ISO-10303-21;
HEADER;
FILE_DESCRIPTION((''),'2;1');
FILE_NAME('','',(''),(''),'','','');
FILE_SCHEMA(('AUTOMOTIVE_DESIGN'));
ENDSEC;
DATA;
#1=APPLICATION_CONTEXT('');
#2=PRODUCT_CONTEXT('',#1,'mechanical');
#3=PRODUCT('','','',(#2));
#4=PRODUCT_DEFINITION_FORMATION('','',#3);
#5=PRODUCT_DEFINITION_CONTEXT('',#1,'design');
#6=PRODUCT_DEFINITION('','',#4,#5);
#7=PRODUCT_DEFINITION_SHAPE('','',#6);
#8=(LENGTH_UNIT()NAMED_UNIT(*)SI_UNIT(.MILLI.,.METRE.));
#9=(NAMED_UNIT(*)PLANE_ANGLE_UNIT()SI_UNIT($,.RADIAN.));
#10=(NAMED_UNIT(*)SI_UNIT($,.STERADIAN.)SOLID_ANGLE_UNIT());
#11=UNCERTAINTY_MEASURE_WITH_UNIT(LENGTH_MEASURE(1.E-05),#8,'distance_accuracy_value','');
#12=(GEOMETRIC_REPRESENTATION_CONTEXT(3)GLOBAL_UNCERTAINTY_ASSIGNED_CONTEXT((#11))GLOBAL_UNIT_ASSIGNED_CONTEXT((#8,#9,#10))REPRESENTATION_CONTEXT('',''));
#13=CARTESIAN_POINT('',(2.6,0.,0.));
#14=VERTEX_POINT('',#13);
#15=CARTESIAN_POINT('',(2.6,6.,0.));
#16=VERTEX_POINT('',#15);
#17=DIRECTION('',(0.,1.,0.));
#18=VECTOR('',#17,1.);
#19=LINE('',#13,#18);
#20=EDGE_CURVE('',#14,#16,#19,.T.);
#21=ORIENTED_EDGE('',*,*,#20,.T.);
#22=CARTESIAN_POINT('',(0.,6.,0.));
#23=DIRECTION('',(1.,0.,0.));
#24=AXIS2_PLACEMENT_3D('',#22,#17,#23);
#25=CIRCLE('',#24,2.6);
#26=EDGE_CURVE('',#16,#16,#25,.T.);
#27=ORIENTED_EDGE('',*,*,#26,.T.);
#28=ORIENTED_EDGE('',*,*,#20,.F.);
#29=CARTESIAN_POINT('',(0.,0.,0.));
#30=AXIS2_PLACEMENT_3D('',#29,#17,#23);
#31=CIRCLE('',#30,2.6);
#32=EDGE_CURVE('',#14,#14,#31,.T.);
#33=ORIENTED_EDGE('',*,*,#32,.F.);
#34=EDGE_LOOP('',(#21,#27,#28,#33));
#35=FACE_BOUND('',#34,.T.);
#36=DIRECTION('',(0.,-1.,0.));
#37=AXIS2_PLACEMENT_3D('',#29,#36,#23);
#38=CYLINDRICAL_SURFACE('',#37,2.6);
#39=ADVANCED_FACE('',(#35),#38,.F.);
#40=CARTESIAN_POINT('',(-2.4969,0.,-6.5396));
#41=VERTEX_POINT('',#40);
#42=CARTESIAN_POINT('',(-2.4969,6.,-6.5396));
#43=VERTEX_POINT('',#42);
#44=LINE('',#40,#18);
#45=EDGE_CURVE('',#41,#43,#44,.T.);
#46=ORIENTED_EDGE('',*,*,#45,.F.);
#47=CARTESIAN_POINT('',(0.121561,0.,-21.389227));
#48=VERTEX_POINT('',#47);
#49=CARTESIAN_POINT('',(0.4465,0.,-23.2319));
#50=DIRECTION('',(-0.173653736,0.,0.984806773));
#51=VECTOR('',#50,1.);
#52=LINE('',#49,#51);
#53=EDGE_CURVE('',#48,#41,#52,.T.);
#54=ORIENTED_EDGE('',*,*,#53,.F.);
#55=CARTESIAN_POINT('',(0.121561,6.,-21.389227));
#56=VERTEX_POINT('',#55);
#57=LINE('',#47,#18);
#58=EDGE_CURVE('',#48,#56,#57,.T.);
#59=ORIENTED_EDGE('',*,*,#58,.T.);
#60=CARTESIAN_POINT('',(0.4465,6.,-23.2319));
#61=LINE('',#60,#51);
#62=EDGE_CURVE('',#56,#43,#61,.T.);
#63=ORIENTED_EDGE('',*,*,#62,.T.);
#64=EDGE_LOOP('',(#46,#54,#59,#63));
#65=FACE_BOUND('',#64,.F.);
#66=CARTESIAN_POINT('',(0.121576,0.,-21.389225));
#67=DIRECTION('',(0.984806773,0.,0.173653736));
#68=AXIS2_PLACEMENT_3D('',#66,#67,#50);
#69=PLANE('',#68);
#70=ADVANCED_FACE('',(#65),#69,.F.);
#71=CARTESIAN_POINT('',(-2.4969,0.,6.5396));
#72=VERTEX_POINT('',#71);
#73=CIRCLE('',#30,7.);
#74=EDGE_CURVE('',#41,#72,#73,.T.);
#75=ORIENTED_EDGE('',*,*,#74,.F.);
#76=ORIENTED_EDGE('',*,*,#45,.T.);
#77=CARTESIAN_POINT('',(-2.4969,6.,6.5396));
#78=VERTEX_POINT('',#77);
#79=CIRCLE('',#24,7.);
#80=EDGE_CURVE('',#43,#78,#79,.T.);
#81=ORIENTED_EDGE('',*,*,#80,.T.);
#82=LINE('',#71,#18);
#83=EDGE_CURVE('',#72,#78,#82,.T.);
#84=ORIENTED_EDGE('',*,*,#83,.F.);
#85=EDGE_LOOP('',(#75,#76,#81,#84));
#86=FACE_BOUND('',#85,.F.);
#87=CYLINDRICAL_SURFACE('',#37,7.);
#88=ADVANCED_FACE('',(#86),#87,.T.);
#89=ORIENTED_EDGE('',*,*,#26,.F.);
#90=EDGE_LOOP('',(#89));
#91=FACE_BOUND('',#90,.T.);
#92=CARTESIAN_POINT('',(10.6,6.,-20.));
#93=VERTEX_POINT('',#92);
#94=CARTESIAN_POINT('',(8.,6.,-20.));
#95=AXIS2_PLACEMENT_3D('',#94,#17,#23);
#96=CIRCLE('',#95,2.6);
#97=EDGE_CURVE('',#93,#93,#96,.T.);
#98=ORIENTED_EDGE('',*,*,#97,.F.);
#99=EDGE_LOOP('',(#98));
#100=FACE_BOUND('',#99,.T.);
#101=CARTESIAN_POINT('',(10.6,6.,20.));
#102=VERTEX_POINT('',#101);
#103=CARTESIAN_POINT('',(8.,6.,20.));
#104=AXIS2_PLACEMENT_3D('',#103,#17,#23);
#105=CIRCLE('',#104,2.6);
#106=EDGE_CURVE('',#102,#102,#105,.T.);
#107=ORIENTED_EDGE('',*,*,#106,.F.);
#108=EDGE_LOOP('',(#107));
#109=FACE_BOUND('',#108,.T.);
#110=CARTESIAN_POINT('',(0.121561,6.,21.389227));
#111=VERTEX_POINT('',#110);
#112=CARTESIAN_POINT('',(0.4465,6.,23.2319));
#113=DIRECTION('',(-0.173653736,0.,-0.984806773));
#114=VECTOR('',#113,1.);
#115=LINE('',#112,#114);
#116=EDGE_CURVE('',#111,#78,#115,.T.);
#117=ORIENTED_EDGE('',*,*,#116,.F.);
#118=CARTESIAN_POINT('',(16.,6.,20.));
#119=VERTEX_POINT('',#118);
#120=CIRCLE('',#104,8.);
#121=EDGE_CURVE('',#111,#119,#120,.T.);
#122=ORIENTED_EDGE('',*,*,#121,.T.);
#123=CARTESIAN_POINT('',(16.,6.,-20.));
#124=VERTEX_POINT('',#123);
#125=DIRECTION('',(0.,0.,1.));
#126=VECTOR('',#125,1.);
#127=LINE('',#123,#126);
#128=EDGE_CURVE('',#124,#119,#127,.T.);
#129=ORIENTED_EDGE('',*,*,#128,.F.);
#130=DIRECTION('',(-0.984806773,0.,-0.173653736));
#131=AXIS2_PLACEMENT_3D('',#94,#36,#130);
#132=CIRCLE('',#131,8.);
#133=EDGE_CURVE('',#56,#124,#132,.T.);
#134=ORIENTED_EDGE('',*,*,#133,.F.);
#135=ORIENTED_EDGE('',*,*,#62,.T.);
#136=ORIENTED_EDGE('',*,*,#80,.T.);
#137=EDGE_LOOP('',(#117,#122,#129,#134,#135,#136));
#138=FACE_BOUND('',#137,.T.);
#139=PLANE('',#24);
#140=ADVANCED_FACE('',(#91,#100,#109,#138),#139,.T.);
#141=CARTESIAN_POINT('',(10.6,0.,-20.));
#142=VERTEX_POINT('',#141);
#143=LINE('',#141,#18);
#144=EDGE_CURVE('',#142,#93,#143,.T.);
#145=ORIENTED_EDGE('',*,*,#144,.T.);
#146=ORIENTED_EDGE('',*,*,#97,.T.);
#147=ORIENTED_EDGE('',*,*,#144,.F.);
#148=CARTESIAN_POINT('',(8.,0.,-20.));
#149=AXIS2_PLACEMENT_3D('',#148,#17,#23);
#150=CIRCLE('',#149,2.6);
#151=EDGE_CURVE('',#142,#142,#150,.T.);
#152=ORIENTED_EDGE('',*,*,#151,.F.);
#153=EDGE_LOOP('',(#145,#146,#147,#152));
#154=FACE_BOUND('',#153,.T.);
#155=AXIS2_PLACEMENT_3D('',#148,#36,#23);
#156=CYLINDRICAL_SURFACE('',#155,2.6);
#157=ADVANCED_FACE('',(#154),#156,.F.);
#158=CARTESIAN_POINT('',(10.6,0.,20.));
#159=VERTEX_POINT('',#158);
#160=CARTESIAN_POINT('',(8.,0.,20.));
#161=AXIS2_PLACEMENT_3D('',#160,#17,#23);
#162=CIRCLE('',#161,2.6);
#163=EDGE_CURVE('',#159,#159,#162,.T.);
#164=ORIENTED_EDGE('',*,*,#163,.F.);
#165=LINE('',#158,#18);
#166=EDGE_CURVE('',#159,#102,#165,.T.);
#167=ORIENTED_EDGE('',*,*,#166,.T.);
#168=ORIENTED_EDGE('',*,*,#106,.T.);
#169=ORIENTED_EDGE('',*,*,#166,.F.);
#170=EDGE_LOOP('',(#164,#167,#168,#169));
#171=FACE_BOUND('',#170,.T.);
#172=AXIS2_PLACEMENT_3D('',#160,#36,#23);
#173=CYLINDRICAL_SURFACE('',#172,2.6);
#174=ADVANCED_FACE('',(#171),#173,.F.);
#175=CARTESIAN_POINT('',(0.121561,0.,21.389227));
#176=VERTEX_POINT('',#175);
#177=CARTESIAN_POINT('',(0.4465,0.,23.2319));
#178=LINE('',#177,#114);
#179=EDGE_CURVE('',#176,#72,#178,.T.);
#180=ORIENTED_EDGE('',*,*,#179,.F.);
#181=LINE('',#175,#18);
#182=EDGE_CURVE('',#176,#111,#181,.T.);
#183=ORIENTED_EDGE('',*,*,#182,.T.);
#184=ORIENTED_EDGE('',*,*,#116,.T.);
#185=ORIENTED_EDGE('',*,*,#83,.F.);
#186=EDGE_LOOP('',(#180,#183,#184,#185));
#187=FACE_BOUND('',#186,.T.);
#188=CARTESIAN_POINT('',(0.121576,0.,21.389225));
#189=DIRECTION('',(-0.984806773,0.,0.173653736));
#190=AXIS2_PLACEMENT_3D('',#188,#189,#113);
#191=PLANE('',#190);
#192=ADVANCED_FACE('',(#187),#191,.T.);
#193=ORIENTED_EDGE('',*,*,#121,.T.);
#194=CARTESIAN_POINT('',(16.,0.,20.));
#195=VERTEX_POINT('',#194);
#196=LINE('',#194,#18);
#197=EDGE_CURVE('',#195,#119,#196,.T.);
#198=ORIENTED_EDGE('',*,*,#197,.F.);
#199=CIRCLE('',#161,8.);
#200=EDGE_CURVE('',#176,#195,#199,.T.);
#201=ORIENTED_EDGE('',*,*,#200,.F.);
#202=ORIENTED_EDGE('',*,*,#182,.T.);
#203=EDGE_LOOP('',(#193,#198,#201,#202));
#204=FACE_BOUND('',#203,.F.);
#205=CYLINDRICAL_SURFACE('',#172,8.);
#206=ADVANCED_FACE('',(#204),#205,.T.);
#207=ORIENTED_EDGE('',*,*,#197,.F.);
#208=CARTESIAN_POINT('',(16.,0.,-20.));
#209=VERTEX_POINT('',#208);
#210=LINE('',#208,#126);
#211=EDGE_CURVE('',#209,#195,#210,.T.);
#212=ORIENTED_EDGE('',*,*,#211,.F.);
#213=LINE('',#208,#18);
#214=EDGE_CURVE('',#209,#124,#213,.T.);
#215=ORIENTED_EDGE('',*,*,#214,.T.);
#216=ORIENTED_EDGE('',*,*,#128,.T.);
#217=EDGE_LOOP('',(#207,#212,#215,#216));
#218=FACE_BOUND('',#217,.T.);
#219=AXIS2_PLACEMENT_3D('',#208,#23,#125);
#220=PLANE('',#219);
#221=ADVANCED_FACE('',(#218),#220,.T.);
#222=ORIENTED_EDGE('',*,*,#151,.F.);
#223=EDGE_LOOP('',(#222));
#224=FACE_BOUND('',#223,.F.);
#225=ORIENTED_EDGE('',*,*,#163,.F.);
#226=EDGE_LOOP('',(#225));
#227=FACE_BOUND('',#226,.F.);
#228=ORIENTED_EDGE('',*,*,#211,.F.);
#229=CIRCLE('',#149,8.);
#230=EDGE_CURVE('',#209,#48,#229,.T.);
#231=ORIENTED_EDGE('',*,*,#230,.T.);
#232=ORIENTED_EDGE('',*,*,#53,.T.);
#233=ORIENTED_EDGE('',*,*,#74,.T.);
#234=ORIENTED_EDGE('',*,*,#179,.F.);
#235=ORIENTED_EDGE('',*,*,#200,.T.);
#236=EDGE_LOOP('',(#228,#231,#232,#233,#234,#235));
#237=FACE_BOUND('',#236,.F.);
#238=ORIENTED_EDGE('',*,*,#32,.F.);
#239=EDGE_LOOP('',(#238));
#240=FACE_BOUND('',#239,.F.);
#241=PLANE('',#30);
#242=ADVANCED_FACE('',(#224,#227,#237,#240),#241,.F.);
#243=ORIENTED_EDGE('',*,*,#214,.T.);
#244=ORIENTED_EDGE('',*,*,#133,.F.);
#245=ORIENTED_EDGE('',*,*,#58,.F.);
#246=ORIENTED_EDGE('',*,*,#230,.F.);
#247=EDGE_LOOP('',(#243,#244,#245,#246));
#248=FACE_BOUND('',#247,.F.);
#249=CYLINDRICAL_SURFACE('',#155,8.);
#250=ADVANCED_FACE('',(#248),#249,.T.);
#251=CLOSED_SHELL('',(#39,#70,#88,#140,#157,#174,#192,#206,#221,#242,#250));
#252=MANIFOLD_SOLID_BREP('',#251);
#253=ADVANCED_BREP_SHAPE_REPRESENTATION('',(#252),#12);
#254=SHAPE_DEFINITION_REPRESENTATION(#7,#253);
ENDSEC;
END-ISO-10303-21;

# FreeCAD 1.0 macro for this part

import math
import FreeCAD as App
import Part
import Sketcher
Q = App.Units.Quantity

doc = App.newDocument("Part")
body = doc.addObject("PartDesign::Body", "Body")

# Sketch on XZ plane
sketch1 = body.newObject("Sketcher::SketchObject", "Sketch")
sketch1.AttachmentSupport = (doc.getObject("XZ_Plane"), [""])
sketch1.MapMode = "FlatFace"
sketch1.addGeometry([
    Part.LineSegment(App.Vector(0.1, -21.4, 0), App.Vector(-2.5, -6.5, 0)),  # 0
    Part.ArcOfCircle(Part.Circle(App.Vector(0, 0, 0), App.Vector(0, 0, 1), 7), math.radians(111), math.radians(249)),  # 1
    Part.LineSegment(App.Vector(-2.5, 6.5, 0), App.Vector(0.1, 21.4, 0)),  # 2
    Part.ArcOfCircle(Part.Circle(App.Vector(8, 20, 0), App.Vector(0, 0, 1), 8), math.radians(0), math.radians(170)),  # 3
    Part.LineSegment(App.Vector(16, 20, 0), App.Vector(16, -20, 0)),  # 4
    Part.ArcOfCircle(Part.Circle(App.Vector(8, -20, 0), App.Vector(0, 0, 1), 8), math.radians(-170), math.radians(0)),  # 5
    Part.Circle(App.Vector(8, -20, 0), App.Vector(0, 0, 1), 2.6),  # 6
    Part.Circle(App.Vector(8, 20, 0), App.Vector(0, 0, 1), 2.6),  # 7
    Part.Circle(App.Vector(0, 0, 0), App.Vector(0, 0, 1), 2.6),  # 8
], False)
sketch1.addConstraint([
    Sketcher.Constraint("Coincident", 0, 2, 1, 2),
    Sketcher.Constraint("Coincident", 1, 1, 2, 1),
    Sketcher.Constraint("Tangent", 2, 2, 3, 2),
    Sketcher.Constraint("Tangent", 3, 1, 4, 1),
    Sketcher.Constraint("Tangent", 4, 2, 5, 2),
    Sketcher.Constraint("Tangent", 5, 1, 0, 1),
    Sketcher.Constraint("Vertical", 4),
    Sketcher.Constraint("Coincident", 1, 3, -1, 1),
    Sketcher.Constraint("Coincident", 8, 3, -1, 1),
    Sketcher.Constraint("Coincident", 6, 3, 5, 3),
    Sketcher.Constraint("Coincident", 7, 3, 3, 3),
    Sketcher.Constraint("Equal", 3, 5),
    Sketcher.Constraint("Equal", 6, 7),
    Sketcher.Constraint("Equal", 7, 8),
    Sketcher.Constraint("Symmetric", 2, 2, 5, 1, -1),
    Sketcher.Constraint("Radius", 1, Q("7 mm")),
    Sketcher.Constraint("Radius", 3, Q("8 mm")),
    Sketcher.Constraint("Diameter", 6, Q("5.2 mm")),
    Sketcher.Constraint("DistanceX", -1, 1, 3, 3, Q("8 mm")),
    Sketcher.Constraint("DistanceY", -1, 1, 3, 3, Q("20 mm")),
    Sketcher.Constraint("Angle", 0, Q("100.0003 deg")),
])
pad1 = body.newObject("PartDesign::Pad", "Pad")
pad1.Profile = sketch1
pad1.Length = 6
pad1.Reversed = True

doc.recompute()
